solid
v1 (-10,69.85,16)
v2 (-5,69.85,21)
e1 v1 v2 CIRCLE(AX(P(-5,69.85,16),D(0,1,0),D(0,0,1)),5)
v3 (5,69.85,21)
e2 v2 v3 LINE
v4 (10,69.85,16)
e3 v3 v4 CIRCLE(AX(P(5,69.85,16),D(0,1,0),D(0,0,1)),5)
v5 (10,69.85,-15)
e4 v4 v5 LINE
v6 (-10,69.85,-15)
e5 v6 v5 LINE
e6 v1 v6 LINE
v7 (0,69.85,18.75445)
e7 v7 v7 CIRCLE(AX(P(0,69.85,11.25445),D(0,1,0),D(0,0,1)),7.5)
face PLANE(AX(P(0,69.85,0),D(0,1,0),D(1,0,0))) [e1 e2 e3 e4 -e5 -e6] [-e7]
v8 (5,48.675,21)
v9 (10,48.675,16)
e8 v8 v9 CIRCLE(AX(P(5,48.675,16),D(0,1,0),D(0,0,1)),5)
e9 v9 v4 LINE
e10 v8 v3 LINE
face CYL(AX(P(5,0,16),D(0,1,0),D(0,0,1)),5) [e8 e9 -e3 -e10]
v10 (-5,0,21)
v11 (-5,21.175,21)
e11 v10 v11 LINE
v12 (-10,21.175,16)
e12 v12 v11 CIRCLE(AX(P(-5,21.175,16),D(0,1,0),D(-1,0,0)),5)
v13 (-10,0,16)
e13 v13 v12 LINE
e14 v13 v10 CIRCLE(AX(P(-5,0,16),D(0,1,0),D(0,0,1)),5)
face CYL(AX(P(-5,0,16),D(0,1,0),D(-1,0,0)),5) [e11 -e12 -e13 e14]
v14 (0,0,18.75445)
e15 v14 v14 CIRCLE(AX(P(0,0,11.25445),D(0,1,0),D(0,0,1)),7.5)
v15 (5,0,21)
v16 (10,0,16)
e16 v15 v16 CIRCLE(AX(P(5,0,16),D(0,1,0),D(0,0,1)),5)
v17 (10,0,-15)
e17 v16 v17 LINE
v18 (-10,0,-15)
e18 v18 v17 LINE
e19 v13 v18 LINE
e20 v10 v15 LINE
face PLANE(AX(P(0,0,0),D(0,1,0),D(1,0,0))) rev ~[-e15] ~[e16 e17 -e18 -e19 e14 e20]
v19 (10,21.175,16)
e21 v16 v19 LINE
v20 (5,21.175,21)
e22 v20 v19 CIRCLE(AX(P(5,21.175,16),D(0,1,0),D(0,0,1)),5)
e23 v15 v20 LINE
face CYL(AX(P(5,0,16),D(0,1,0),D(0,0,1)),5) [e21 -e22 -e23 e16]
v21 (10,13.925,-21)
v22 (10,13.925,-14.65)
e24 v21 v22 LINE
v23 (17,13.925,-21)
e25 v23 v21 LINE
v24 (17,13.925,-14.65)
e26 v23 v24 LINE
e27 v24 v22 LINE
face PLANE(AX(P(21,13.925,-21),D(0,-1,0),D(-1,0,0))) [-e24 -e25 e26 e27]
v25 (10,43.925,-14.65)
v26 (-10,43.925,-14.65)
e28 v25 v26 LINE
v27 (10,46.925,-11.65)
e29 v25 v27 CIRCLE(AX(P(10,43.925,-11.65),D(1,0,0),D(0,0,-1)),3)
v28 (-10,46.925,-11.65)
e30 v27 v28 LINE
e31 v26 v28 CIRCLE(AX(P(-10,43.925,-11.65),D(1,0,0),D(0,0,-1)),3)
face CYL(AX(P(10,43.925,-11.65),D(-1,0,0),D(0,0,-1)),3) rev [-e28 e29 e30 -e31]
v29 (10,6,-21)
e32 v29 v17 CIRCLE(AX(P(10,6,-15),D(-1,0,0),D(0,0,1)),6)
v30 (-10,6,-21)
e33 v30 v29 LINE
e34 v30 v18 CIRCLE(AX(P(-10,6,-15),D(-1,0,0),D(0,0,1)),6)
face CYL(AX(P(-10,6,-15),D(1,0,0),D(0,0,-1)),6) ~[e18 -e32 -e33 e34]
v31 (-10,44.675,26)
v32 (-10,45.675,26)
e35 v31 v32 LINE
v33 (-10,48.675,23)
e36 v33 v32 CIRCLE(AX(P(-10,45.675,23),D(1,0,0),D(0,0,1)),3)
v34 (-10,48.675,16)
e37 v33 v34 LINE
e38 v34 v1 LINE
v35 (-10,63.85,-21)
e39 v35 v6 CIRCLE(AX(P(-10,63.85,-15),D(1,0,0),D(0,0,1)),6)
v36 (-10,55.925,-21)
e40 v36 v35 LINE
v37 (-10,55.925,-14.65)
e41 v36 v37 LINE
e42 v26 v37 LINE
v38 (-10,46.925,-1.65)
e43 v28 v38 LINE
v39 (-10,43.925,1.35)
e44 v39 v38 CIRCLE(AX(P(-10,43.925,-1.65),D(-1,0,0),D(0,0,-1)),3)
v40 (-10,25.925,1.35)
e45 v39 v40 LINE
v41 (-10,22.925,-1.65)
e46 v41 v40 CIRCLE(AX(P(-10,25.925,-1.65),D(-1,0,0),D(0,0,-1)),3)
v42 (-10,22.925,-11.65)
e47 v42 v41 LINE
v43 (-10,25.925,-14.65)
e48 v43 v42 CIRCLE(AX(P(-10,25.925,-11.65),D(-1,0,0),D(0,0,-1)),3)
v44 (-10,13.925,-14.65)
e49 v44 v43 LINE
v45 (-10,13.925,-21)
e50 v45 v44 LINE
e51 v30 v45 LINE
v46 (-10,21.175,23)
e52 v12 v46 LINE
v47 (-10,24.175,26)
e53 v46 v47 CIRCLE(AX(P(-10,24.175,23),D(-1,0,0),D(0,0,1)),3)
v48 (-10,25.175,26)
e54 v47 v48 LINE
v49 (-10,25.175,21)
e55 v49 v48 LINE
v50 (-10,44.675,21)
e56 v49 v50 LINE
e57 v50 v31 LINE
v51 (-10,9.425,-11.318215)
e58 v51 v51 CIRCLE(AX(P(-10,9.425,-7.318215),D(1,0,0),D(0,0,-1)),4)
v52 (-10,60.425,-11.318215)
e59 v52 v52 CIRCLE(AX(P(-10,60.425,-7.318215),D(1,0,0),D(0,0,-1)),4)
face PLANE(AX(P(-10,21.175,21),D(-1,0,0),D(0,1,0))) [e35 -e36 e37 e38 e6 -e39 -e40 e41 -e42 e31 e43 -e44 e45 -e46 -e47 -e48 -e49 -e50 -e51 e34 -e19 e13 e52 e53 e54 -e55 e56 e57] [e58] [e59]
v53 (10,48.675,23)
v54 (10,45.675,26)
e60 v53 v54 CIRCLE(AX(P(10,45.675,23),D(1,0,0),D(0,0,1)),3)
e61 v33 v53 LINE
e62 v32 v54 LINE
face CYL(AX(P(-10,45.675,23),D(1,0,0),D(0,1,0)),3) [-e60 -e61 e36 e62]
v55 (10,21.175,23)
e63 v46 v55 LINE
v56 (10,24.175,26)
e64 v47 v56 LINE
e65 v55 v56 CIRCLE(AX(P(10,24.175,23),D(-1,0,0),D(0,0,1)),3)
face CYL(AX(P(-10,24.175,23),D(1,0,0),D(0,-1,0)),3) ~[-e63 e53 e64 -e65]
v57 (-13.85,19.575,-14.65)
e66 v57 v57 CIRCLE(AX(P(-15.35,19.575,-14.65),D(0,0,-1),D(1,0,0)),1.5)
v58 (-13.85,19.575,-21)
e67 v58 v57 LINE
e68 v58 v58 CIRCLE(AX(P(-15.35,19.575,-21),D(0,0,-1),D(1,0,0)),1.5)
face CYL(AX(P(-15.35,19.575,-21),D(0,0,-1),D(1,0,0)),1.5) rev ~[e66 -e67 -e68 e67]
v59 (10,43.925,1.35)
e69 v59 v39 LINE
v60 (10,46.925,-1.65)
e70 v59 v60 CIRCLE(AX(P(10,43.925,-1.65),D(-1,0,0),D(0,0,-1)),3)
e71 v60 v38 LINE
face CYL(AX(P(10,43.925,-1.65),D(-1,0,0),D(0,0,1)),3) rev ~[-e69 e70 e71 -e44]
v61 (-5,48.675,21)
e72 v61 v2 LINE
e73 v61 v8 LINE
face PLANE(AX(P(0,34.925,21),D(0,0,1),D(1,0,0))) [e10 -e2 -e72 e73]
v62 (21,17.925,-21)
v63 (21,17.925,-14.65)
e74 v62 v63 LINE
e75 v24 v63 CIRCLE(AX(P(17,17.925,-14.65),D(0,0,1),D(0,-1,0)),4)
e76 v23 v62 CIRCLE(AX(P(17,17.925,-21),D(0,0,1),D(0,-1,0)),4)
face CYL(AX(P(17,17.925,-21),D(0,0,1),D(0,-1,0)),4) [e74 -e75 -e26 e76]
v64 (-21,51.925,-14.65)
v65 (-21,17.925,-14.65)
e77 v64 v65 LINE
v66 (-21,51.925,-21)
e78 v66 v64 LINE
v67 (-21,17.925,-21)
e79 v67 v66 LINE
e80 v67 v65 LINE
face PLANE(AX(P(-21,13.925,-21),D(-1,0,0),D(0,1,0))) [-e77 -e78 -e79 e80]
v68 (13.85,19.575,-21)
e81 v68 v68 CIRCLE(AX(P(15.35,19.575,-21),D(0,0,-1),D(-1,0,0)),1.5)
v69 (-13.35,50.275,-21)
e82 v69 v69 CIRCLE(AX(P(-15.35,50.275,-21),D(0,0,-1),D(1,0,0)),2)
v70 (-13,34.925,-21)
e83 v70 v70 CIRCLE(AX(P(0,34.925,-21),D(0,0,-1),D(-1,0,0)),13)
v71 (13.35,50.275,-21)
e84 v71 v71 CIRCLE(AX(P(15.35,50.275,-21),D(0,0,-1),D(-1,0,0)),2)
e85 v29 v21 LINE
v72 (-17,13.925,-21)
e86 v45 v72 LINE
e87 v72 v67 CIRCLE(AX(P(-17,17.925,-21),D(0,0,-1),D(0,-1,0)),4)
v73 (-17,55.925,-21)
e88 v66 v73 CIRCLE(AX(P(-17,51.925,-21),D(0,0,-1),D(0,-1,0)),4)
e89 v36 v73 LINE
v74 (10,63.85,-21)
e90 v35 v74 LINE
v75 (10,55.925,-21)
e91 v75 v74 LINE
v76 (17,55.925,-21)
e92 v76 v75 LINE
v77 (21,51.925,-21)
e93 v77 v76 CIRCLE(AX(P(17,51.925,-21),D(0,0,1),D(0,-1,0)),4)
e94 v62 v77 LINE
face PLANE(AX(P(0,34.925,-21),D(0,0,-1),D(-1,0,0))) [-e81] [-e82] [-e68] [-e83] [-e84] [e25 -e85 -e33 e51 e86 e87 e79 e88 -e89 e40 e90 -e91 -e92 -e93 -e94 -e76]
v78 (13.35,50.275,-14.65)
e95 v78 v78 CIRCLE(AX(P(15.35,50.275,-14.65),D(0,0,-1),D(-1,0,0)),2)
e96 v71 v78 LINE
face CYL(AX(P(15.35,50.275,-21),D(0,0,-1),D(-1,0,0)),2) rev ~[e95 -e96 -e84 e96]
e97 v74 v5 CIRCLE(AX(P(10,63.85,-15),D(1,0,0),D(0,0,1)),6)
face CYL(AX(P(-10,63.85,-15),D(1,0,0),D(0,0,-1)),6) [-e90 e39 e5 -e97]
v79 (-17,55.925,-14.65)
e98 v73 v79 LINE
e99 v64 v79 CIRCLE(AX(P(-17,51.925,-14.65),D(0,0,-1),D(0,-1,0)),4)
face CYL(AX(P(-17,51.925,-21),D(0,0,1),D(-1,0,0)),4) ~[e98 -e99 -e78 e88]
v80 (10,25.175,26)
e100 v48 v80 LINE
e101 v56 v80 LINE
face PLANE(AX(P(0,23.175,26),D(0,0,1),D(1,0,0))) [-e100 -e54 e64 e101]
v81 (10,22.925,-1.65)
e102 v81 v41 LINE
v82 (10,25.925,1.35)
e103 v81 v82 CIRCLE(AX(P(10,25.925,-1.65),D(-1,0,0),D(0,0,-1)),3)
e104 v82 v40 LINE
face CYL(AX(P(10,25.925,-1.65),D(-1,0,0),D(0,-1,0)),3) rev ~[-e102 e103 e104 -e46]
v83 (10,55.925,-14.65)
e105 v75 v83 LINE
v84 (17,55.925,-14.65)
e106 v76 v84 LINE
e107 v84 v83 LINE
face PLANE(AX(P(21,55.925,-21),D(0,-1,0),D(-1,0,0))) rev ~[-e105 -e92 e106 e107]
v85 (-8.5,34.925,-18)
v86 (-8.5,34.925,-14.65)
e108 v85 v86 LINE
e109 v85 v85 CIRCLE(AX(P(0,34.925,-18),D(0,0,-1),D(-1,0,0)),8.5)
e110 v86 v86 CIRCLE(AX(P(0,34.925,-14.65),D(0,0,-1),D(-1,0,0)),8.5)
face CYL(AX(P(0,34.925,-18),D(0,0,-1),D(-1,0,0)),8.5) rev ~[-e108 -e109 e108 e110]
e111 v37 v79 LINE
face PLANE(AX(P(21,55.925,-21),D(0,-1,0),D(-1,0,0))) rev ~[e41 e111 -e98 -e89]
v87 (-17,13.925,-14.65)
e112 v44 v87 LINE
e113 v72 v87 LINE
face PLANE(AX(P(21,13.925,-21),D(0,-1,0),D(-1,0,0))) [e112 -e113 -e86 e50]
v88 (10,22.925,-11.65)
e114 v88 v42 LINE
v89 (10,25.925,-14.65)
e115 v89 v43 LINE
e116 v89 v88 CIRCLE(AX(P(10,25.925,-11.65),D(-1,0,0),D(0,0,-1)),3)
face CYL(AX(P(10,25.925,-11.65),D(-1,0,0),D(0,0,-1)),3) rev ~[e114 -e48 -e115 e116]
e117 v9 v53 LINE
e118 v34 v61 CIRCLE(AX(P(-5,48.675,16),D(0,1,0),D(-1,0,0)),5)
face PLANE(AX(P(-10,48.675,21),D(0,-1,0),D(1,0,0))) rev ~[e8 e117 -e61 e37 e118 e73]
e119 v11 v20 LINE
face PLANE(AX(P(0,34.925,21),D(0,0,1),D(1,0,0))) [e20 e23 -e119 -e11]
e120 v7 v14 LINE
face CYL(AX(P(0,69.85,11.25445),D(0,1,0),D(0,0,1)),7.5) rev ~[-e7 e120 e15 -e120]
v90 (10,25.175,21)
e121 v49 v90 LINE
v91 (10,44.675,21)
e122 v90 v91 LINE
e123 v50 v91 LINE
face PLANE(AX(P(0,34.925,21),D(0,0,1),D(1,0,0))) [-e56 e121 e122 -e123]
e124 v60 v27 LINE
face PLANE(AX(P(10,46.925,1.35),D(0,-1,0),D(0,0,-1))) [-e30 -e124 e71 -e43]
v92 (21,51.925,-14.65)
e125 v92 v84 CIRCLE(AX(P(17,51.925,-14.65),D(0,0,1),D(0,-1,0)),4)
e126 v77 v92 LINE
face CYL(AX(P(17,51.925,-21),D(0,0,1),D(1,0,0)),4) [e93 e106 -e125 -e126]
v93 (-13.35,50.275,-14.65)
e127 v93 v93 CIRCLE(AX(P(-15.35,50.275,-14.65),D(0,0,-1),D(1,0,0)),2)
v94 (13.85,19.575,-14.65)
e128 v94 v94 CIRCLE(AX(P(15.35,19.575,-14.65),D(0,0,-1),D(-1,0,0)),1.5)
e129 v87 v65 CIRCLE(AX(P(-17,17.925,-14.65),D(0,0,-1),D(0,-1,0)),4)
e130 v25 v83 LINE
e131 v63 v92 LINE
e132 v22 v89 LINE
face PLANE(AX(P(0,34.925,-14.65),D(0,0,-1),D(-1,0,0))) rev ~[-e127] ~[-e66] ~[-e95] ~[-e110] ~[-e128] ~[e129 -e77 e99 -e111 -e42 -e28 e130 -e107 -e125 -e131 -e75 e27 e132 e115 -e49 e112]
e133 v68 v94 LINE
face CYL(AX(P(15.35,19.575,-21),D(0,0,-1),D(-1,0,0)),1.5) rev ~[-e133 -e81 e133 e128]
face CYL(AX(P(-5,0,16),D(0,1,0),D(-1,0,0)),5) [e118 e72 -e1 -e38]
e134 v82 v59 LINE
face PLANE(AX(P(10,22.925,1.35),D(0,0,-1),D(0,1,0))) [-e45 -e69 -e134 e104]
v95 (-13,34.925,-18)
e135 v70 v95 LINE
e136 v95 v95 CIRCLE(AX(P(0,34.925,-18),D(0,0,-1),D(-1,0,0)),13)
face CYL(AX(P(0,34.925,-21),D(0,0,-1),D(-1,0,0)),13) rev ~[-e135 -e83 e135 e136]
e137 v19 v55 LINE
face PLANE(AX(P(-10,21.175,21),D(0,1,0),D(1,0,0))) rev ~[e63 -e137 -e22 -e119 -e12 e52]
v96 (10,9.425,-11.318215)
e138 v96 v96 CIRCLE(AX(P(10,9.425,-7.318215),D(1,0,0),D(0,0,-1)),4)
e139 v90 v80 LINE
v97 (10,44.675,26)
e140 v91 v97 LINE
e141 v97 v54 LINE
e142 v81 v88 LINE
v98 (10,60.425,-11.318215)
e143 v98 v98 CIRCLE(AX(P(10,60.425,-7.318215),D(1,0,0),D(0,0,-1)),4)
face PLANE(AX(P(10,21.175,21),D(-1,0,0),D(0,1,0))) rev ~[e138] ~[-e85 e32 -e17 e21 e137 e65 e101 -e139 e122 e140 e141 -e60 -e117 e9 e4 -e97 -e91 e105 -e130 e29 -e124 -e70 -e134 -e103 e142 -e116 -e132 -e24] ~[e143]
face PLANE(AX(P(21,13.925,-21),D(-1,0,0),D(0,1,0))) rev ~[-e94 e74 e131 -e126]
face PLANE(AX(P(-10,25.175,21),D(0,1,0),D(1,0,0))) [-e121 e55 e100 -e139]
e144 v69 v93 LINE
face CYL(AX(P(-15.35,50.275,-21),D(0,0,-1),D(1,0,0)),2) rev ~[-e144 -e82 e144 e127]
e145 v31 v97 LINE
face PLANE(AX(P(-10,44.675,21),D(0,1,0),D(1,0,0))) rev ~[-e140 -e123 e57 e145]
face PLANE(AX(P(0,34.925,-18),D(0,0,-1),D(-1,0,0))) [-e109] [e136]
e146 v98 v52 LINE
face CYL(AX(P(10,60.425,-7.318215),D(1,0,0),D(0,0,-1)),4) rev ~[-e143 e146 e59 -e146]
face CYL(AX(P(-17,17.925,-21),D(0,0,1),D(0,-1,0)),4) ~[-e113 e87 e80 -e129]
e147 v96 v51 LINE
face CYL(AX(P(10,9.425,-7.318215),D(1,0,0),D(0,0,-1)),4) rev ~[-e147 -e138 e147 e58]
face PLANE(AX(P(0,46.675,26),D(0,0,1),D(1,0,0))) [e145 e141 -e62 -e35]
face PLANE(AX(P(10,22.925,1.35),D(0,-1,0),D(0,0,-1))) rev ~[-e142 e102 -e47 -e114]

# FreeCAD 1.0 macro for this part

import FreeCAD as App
import Part
import Sketcher
from FreeCAD import Vector


def edges_at(feature, points):
    """Names of the edges that pass closest to the given points."""
    edges = feature.Shape.Edges
    near = lambda p: min(range(len(edges)), key=lambda i: edges[i].distToShape(Part.Vertex(*p))[0])
    return sorted({f"Edge{near(p) + 1}" for p in points})


def add_polygon(sketch, points):
    """Adds a closed chain of lines whose ends are joined by coincident constraints."""
    first, n = sketch.GeometryCount, len(points)
    for a, b in zip(points, points[1:] + points[:1]):
        sketch.addGeometry(Part.LineSegment(App.Vector(*a, 0), App.Vector(*b, 0)), False)
    for i in range(n):
        sketch.addConstraint(Sketcher.Constraint("Coincident", first + i, 2, first + (i + 1) % n, 1))

doc = App.newDocument("Part")
body = doc.addObject("PartDesign::Body", "Body")

# Sketch on XZ plane
sketch1 = body.newObject("Sketcher::SketchObject", "Sketch")
sketch1.AttachmentSupport = (doc.getObject("XZ_Plane"), [""])
sketch1.MapMode = "FlatFace"
add_polygon(sketch1, [(-10, -21), (-10, 21), (10, 21), (10, -21)])  # lines 0-3
sketch1.addConstraint([
    Sketcher.Constraint("Vertical", 0),
    Sketcher.Constraint("Horizontal", 1),
    Sketcher.Constraint("Vertical", 2),
    Sketcher.Constraint("Horizontal", 3),
    Sketcher.Constraint("Symmetric", 0, 2, 2, 2, -1, 1),
    Sketcher.Constraint("DistanceX", 1, 1, 1, 2, 20.0),
    Sketcher.Constraint("DistanceY", 0, 1, 0, 2, 42.0),
])
pad1 = body.newObject("PartDesign::Pad", "Pad")
pad1.Profile = sketch1
pad1.Length = 69.85
pad1.Reversed = True
doc.recompute()

fillet = body.newObject("PartDesign::Fillet", "Fillet")
fillet.Base = (pad1, edges_at(pad1, [(10, 34.925, 21), (-10, 34.925, 21)]))
fillet.Radius = 5

# Sketch on XY plane
sketch2 = body.newObject("Sketcher::SketchObject", "Sketch001")
sketch2.AttachmentSupport = (doc.getObject("XY_Plane"), [""])
sketch2.MapMode = "FlatFace"
sketch2.AttachmentOffset = App.Placement(Vector(0, 0, -21), App.Rotation())
add_polygon(sketch2, [(21, 56), (21, 14), (-21, 14), (-21, 56)])  # lines 0-3
sketch2.addConstraint([
    Sketcher.Constraint("Vertical", 0),
    Sketcher.Constraint("Horizontal", 1),
    Sketcher.Constraint("Vertical", 2),
    Sketcher.Constraint("Horizontal", 3),
    Sketcher.Constraint("Equal", 3, 0),
    Sketcher.Constraint("DistanceX", 1, 2, 1, 1, 42.0),
    Sketcher.Constraint("DistanceX", -1, 1, 0, 2, 21.0),
    Sketcher.Constraint("DistanceY", -1, 1, 0, 2, 13.925),
])
pad2 = body.newObject("PartDesign::Pad", "Pad001")
pad2.Profile = sketch2
pad2.Length = 6.35

# Sketch on YZ plane
sketch3 = body.newObject("Sketcher::SketchObject", "Sketch002")
sketch3.AttachmentSupport = (doc.getObject("YZ_Plane"), [""])
sketch3.MapMode = "FlatFace"
sketch3.AttachmentOffset = App.Placement(Vector(0, 0, 10), App.Rotation())
add_polygon(sketch3, [(47, 1), (23, 1), (23, -15), (47, -15)])  # lines 0-3
sketch3.addConstraint([
    Sketcher.Constraint("Horizontal", 0),
    Sketcher.Constraint("Vertical", 1),
    Sketcher.Constraint("Horizontal", 2),
    Sketcher.Constraint("Vertical", 3),
    Sketcher.Constraint("DistanceX", 0, 2, 0, 1, 24.0),
    Sketcher.Constraint("DistanceY", 1, 2, 1, 1, 16.0),
    Sketcher.Constraint("DistanceY", -1, 1, 0, 2, 1.35),
    Sketcher.Constraint("DistanceX", -1, 1, 0, 2, 22.925),
])
pocket1 = body.newObject("PartDesign::Pocket", "Pocket")
pocket1.Profile = sketch3
pocket1.Type = "ThroughAll"

# Sketch on XY plane
sketch4 = body.newObject("Sketcher::SketchObject", "Sketch003")
sketch4.AttachmentSupport = (doc.getObject("XY_Plane"), [""])
sketch4.MapMode = "FlatFace"
sketch4.AttachmentOffset = App.Placement(Vector(0, 0, -21), App.Rotation())
sketch4.addGeometry(Part.Circle(Vector(0, 35, 0), Vector(0, 0, 1), 13), False)
sketch4.addConstraint([
    Sketcher.Constraint("PointOnObject", 0, 3, -2),
    Sketcher.Constraint("Diameter", 0, 26.0),
    Sketcher.Constraint("DistanceY", -1, 1, 0, 3, 34.925),
])
pocket2 = body.newObject("PartDesign::Pocket", "Pocket001")
pocket2.Profile = sketch4
pocket2.Length = 3
pocket2.Reversed = True

# Sketch on XY plane
sketch5 = body.newObject("Sketcher::SketchObject", "Sketch004")
sketch5.AttachmentSupport = (doc.getObject("XY_Plane"), [""])
sketch5.MapMode = "FlatFace"
sketch5.AttachmentOffset = App.Placement(Vector(0, 0, -18), App.Rotation())
sketch5.addGeometry(Part.Circle(Vector(0, 35, 0), Vector(0, 0, 1), 8), False)
sketch5.addConstraint([
    Sketcher.Constraint("PointOnObject", 0, 3, -2),
    Sketcher.Constraint("Diameter", 0, 17.0),
    Sketcher.Constraint("DistanceY", -1, 1, 0, 3, 34.925),
])
pocket3 = body.newObject("PartDesign::Pocket", "Pocket002")
pocket3.Profile = sketch5
pocket3.Type = "UpToFirst"
pocket3.Reversed = True

# Sketch on YZ plane
sketch6 = body.newObject("Sketcher::SketchObject", "Sketch005")
sketch6.AttachmentSupport = (doc.getObject("YZ_Plane"), [""])
sketch6.MapMode = "FlatFace"
sketch6.AttachmentOffset = App.Placement(Vector(0, 0, 10), App.Rotation())
sketch6.addGeometry([
    Part.Circle(Vector(60.4, -7.3, 0), Vector(0, 0, 1), 4),
    Part.Circle(Vector(9.4, -7.3, 0), Vector(0, 0, 1), 4),
], False)
sketch6.addConstraint([
    Sketcher.Constraint("Equal", 0, 1),
    Sketcher.Constraint("Horizontal", 0, 3, 1, 3),
    Sketcher.Constraint("Diameter", 0, 8.0),
    Sketcher.Constraint("DistanceX", 1, 3, 0, 3, 51.0),
    Sketcher.Constraint("DistanceX", -1, 1, 0, 3, 60.425),
    Sketcher.Constraint("DistanceY", 0, 3, -1, 1, 7.318215),
])
pocket4 = body.newObject("PartDesign::Pocket", "Pocket003")
pocket4.Profile = sketch6
pocket4.Type = "ThroughAll"
doc.recompute()

fillet2 = body.newObject("PartDesign::Fillet", "Fillet001")
fillet2.Base = (pocket4, edges_at(pocket4, [(0, 0, -21), (0, 69.85, -21)]))
fillet2.Radius = 6
doc.recompute()

fillet3 = body.newObject("PartDesign::Fillet", "Fillet002")
fillet3.Base = (fillet2, edges_at(fillet2, [
    (-21, 13.925, -17.825),
    (21, 55.925, -17.825),
    (-21, 55.925, -17.825),
    (21, 13.925, -17.825),
]))
fillet3.Radius = 4
doc.recompute()

fillet4 = body.newObject("PartDesign::Fillet", "Fillet003")
fillet4.Base = (fillet3, edges_at(fillet3, [
    (0, 22.925, 1.35),
    (0, 46.925, -14.65),
    (0, 46.925, 1.35),
    (0, 22.925, -14.65),
]))
fillet4.Radius = 3

# Sketch on XY plane
sketch7 = body.newObject("Sketcher::SketchObject", "Sketch006")
sketch7.AttachmentSupport = (doc.getObject("XY_Plane"), [""])
sketch7.MapMode = "FlatFace"
sketch7.AttachmentOffset = App.Placement(Vector(0, 0, 21), App.Rotation())
add_polygon(sketch7, [(-10, 49), (-10, 21), (10, 21), (10, 49)])  # lines 0-3
sketch7.addConstraint([
    Sketcher.Constraint("Vertical", 0),
    Sketcher.Constraint("Horizontal", 1),
    Sketcher.Constraint("Vertical", 2),
    Sketcher.Constraint("Horizontal", 3),
    Sketcher.Constraint("DistanceX", 1, 1, 1, 2, 20.0),
    Sketcher.Constraint("DistanceY", 0, 2, 0, 1, 27.5),
    Sketcher.Constraint("DistanceX", 0, 2, -1, 1, 10.0),
    Sketcher.Constraint("DistanceY", -1, 1, 0, 2, 21.175),
])
pad3 = body.newObject("PartDesign::Pad", "Pad002")
pad3.Profile = sketch7
pad3.Length = 6.35
pad3.Reversed = True

# Sketch on XZ plane
sketch8 = body.newObject("Sketcher::SketchObject", "Sketch007")
sketch8.AttachmentSupport = (doc.getObject("XZ_Plane"), [""])
sketch8.MapMode = "FlatFace"
sketch8.AttachmentOffset = App.Placement(Vector(0, 0, -69.85), App.Rotation())
sketch8.addGeometry(Part.Circle(Vector(0, 11, 0), Vector(0, 0, 1), 8), False)
sketch8.addConstraint([
    Sketcher.Constraint("PointOnObject", 0, 3, -2),
    Sketcher.Constraint("Diameter", 0, 15.0),
    Sketcher.Constraint("DistanceY", -1, 1, 0, 3, 11.25445),
])
pocket5 = body.newObject("PartDesign::Pocket", "Pocket004")
pocket5.Profile = sketch8
pocket5.Type = "ThroughAll"
pocket5.Reversed = True

# Sketch on XY plane
sketch9 = body.newObject("Sketcher::SketchObject", "Sketch008")
sketch9.AttachmentSupport = (doc.getObject("XY_Plane"), [""])
sketch9.MapMode = "FlatFace"
sketch9.AttachmentOffset = App.Placement(Vector(0, 0, 21), App.Rotation())
add_polygon(sketch9, [(-10, 25.2), (-10, 21.2), (10, 21.2), (10, 25.2)])  # lines 0-3
add_polygon(sketch9, [(-10, 48.7), (-10, 44.7), (10, 44.7), (10, 48.7)])  # lines 4-7
sketch9.addConstraint([
    Sketcher.Constraint("Vertical", 0),
    Sketcher.Constraint("Horizontal", 1),
    Sketcher.Constraint("Vertical", 2),
    Sketcher.Constraint("Horizontal", 3),
    Sketcher.Constraint("Vertical", 4),
    Sketcher.Constraint("Horizontal", 5),
    Sketcher.Constraint("Vertical", 6),
    Sketcher.Constraint("Horizontal", 7),
    Sketcher.Constraint("Vertical", 3, 2, 4, 2),
    Sketcher.Constraint("Vertical", 2, 2, 5, 2),
    Sketcher.Constraint("Equal", 2, 4),
    Sketcher.Constraint("DistanceX", 1, 1, 1, 2, 20.0),
    Sketcher.Constraint("DistanceY", 0, 2, 0, 1, 4.0),
    Sketcher.Constraint("DistanceX", 0, 2, -1, 1, 10.0),
    Sketcher.Constraint("DistanceY", 3, 2, 4, 2, 19.5),
    Sketcher.Constraint("DistanceY", -1, 1, 0, 2, 21.175),
])
pad4 = body.newObject("PartDesign::Pad", "Pad003")
pad4.Profile = sketch9
pad4.Length = 5
doc.recompute()

fillet5 = body.newObject("PartDesign::Fillet", "Fillet004")
fillet5.Base = (pad4, edges_at(pad4, [(0, 21.175, 26), (0, 48.675, 26)]))
fillet5.Radius = 3

# Sketch on XY plane
sketch10 = body.newObject("Sketcher::SketchObject", "Sketch009")
sketch10.AttachmentSupport = (doc.getObject("XY_Plane"), [""])
sketch10.MapMode = "FlatFace"
sketch10.AttachmentOffset = App.Placement(Vector(0, 0, -21), App.Rotation())
sketch10.addGeometry([
    Part.Circle(Vector(15.3, 50.3, 0), Vector(0, 0, 1), 2),
    Part.Circle(Vector(-15.3, 19.6, 0), Vector(0, 0, 1), 1.5),
    Part.Circle(Vector(15.3, 19.6, 0), Vector(0, 0, 1), 1.5),
    Part.Circle(Vector(-15.3, 50.3, 0), Vector(0, 0, 1), 2),
], False)
sketch10.addConstraint([
    Sketcher.Constraint("Equal", 1, 2),
    Sketcher.Constraint("Equal", 0, 3),
    Sketcher.Constraint("Symmetric", 1, 3, 2, 3, -2),
    Sketcher.Constraint("Symmetric", 0, 3, 3, 3, -2),
    Sketcher.Constraint("Vertical", 0, 3, 2, 3),
    Sketcher.Constraint("Diameter", 0, 4.0),
    Sketcher.Constraint("Diameter", 1, 3.0),
    Sketcher.Constraint("DistanceX", 1, 3, 0, 3, 30.7),
    Sketcher.Constraint("DistanceY", 1, 3, 0, 3, 30.7),
    Sketcher.Constraint("DistanceY", -1, 1, 0, 3, 50.275),
])
pocket6 = body.newObject("PartDesign::Pocket", "Pocket005")
pocket6.Profile = sketch10
pocket6.Length = 7
pocket6.Reversed = True

doc.recompute()
